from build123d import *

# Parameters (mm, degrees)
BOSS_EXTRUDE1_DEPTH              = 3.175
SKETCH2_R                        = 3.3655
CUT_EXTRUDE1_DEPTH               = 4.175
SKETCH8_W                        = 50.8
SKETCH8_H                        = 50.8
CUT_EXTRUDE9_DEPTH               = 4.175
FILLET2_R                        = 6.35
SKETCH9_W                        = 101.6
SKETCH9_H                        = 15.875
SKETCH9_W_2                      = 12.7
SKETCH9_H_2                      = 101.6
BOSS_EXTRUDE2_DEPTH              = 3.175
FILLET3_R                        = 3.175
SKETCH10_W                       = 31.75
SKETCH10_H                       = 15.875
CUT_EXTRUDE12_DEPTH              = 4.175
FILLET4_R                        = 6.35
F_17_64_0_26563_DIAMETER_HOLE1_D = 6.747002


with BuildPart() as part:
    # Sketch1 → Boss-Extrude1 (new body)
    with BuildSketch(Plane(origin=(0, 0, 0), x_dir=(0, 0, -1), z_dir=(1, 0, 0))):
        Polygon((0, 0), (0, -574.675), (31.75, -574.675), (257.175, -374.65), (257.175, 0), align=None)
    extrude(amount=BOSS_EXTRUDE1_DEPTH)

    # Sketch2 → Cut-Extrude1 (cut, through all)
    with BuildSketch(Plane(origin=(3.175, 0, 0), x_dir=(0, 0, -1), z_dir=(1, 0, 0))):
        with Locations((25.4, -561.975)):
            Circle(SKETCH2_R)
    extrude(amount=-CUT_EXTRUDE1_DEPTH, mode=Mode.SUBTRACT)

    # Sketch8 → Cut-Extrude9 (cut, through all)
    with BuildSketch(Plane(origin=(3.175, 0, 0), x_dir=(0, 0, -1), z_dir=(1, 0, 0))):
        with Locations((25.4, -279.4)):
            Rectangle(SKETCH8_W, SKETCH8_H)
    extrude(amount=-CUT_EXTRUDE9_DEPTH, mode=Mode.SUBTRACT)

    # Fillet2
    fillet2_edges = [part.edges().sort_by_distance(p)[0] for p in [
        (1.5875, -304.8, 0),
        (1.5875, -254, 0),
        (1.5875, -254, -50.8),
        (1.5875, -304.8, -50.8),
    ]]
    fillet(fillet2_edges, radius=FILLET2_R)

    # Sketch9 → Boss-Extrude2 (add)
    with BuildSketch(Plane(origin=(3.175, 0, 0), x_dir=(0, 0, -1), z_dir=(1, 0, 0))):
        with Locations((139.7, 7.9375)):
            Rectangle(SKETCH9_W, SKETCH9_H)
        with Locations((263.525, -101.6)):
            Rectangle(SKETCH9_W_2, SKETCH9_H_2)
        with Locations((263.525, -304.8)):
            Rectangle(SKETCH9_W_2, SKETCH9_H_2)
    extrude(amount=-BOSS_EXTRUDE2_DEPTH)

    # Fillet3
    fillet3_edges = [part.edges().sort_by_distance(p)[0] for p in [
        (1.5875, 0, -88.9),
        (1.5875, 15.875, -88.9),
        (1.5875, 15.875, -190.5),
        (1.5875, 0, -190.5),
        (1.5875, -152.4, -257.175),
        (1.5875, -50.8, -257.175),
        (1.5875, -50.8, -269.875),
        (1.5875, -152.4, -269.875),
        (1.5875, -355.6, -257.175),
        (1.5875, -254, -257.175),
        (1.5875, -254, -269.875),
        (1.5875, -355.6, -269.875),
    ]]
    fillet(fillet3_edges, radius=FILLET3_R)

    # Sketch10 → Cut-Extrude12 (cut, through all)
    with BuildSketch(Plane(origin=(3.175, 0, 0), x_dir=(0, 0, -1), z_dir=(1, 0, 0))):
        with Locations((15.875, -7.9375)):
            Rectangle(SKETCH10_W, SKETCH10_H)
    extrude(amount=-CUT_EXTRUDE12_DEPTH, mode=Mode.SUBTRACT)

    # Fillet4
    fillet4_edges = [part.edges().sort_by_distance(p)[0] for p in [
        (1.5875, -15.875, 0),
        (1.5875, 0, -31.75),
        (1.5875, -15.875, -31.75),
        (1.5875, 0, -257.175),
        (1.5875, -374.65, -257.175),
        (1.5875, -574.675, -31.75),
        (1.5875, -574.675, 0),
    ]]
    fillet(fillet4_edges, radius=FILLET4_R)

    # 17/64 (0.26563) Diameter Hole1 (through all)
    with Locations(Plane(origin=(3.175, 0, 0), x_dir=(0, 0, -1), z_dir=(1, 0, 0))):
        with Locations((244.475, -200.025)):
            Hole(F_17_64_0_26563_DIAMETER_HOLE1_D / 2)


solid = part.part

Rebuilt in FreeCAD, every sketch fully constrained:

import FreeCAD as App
import Part
import Sketcher
Q = App.Units.Quantity


def edges_at(feature, points):
    """Names of the edges that pass closest to the given points."""
    edges = feature.Shape.Edges
    near = lambda p: min(range(len(edges)), key=lambda i: edges[i].distToShape(Part.Vertex(*p))[0])
    return sorted({f"Edge{near(p) + 1}" for p in points})

doc = App.newDocument("Part")
body = doc.addObject("PartDesign::Body", "Body")

sketch1 = body.newObject("Sketcher::SketchObject", "Sketch")
sketch1.AttachmentSupport = (doc.getObject("YZ_Plane"), [""])
sketch1.MapMode = "FlatFace"
sketch1.addGeometry(Part.LineSegment(App.Vector(0, 0, 0), App.Vector(-575, 0, 0)), False)
sketch1.addGeometry(Part.LineSegment(App.Vector(-575, 0, 0), App.Vector(-575, -32, 0)), False)
sketch1.addGeometry(Part.LineSegment(App.Vector(-575, -32, 0), App.Vector(-375, -257, 0)), False)
sketch1.addGeometry(Part.LineSegment(App.Vector(-375, -257, 0), App.Vector(0, -257, 0)), False)
sketch1.addGeometry(Part.LineSegment(App.Vector(0, -257, 0), App.Vector(0, 0, 0)), False)
sketch1.addConstraint(Sketcher.Constraint("Coincident", 0, 2, 1, 1))
sketch1.addConstraint(Sketcher.Constraint("Coincident", 1, 2, 2, 1))
sketch1.addConstraint(Sketcher.Constraint("Coincident", 2, 2, 3, 1))
sketch1.addConstraint(Sketcher.Constraint("Coincident", 3, 2, 4, 1))
sketch1.addConstraint(Sketcher.Constraint("Coincident", 4, 2, 0, 1))
sketch1.addConstraint(Sketcher.Constraint("Horizontal", 0))
sketch1.addConstraint(Sketcher.Constraint("Vertical", 1))
sketch1.addConstraint(Sketcher.Constraint("Horizontal", 3))
sketch1.addConstraint(Sketcher.Constraint("Vertical", 4))
sketch1.addConstraint(Sketcher.Constraint("Coincident", 4, 2, -1, 1))
sketch1.addConstraint(Sketcher.Constraint("DistanceX", 3, 1, 3, 2, Q("14.75 in")))
sketch1.addConstraint(Sketcher.Constraint("DistanceY", 1, 2, 1, 1, Q("1.25 in")))
sketch1.addConstraint(Sketcher.Constraint("DistanceX", 0, 2, 0, 1, Q("22.625 in")))
sketch1.addConstraint(Sketcher.Constraint("DistanceY", 4, 1, 4, 2, Q("10.125 in")))
pad1 = body.newObject("PartDesign::Pad", "Pad")
pad1.Profile = sketch1
pad1.Length = Q("0.125 in")

sketch2 = body.newObject("Sketcher::SketchObject", "Sketch001")
sketch2.AttachmentSupport = (doc.getObject("YZ_Plane"), [""])
sketch2.MapMode = "FlatFace"
sketch2.AttachmentOffset = App.Placement(App.Vector(0, 0, 0.125 * 25.4), App.Rotation())
sketch2.addGeometry(Part.Circle(App.Vector(-562, -25.4, 0), App.Vector(0, 0, 1), 3.4), False)
sketch2.addConstraint(Sketcher.Constraint("Diameter", 0, Q("0.265 in")))
sketch2.addConstraint(Sketcher.Constraint("DistanceY", 0, 3, -1, 1, Q("1 in")))
sketch2.addConstraint(Sketcher.Constraint("DistanceX", 0, 3, -1, 1, Q("22.125 in")))
pocket1 = body.newObject("PartDesign::Pocket", "Pocket")
pocket1.Profile = sketch2
pocket1.Type = "ThroughAll"

sketch3 = body.newObject("Sketcher::SketchObject", "Sketch002")
sketch3.AttachmentSupport = (doc.getObject("YZ_Plane"), [""])
sketch3.MapMode = "FlatFace"
sketch3.AttachmentOffset = App.Placement(App.Vector(0, 0, 0.125 * 25.4), App.Rotation())
sketch3.addGeometry(Part.LineSegment(App.Vector(-254, 0, 0), App.Vector(-305, 0, 0)), False)
sketch3.addGeometry(Part.LineSegment(App.Vector(-305, 0, 0), App.Vector(-305, -51, 0)), False)
sketch3.addGeometry(Part.LineSegment(App.Vector(-305, -51, 0), App.Vector(-254, -51, 0)), False)
sketch3.addGeometry(Part.LineSegment(App.Vector(-254, -51, 0), App.Vector(-254, 0, 0)), False)
sketch3.addConstraint(Sketcher.Constraint("Coincident", 0, 2, 1, 1))
sketch3.addConstraint(Sketcher.Constraint("Coincident", 1, 2, 2, 1))
sketch3.addConstraint(Sketcher.Constraint("Coincident", 2, 2, 3, 1))
sketch3.addConstraint(Sketcher.Constraint("Coincident", 3, 2, 0, 1))
sketch3.addConstraint(Sketcher.Constraint("Horizontal", 0))
sketch3.addConstraint(Sketcher.Constraint("Vertical", 1))
sketch3.addConstraint(Sketcher.Constraint("Horizontal", 2))
sketch3.addConstraint(Sketcher.Constraint("Vertical", 3))
sketch3.addConstraint(Sketcher.Constraint("PointOnObject", 0, 2, -1))
sketch3.addConstraint(Sketcher.Constraint("Equal", 2, 1))
sketch3.addConstraint(Sketcher.Constraint("DistanceX", 0, 2, 0, 1, Q("2 in")))
sketch3.addConstraint(Sketcher.Constraint("DistanceX", 0, 2, -1, 1, Q("12 in")))
pocket2 = body.newObject("PartDesign::Pocket", "Pocket001")
pocket2.Profile = sketch3
pocket2.Type = "ThroughAll"
doc.recompute()

fillet = body.newObject("PartDesign::Fillet", "Fillet")
fillet.Base = (pocket2, edges_at(pocket2, [
    (1.587, -304.8, 0),
    (1.587, -254, 0),
    (1.587, -254, -50.8),
    (1.587, -304.8, -50.8),
]))
fillet.Radius = Q("0.25 in")

sketch4 = body.newObject("Sketcher::SketchObject", "Sketch003")
sketch4.AttachmentSupport = (doc.getObject("YZ_Plane"), [""])
sketch4.MapMode = "FlatFace"
sketch4.AttachmentOffset = App.Placement(App.Vector(0, 0, 0.125 * 25.4), App.Rotation())
sketch4.addGeometry(Part.LineSegment(App.Vector(16, -89, 0), App.Vector(0, -89, 0)), False)
sketch4.addGeometry(Part.LineSegment(App.Vector(0, -89, 0), App.Vector(0, -190, 0)), False)
sketch4.addGeometry(Part.LineSegment(App.Vector(0, -190, 0), App.Vector(16, -190, 0)), False)
sketch4.addGeometry(Part.LineSegment(App.Vector(16, -190, 0), App.Vector(16, -89, 0)), False)
sketch4.addGeometry(Part.LineSegment(App.Vector(-51, -257, 0), App.Vector(-152, -257, 0)), False)
sketch4.addGeometry(Part.LineSegment(App.Vector(-152, -257, 0), App.Vector(-152, -270, 0)), False)
sketch4.addGeometry(Part.LineSegment(App.Vector(-152, -270, 0), App.Vector(-51, -270, 0)), False)
sketch4.addGeometry(Part.LineSegment(App.Vector(-51, -270, 0), App.Vector(-51, -257, 0)), False)
sketch4.addGeometry(Part.LineSegment(App.Vector(-254, -257, 0), App.Vector(-356, -257, 0)), False)
sketch4.addGeometry(Part.LineSegment(App.Vector(-356, -257, 0), App.Vector(-356, -270, 0)), False)
sketch4.addGeometry(Part.LineSegment(App.Vector(-356, -270, 0), App.Vector(-254, -270, 0)), False)
sketch4.addGeometry(Part.LineSegment(App.Vector(-254, -270, 0), App.Vector(-254, -257, 0)), False)
sketch4.addConstraint(Sketcher.Constraint("Coincident", 0, 2, 1, 1))
sketch4.addConstraint(Sketcher.Constraint("Coincident", 1, 2, 2, 1))
sketch4.addConstraint(Sketcher.Constraint("Coincident", 2, 2, 3, 1))
sketch4.addConstraint(Sketcher.Constraint("Coincident", 3, 2, 0, 1))
sketch4.addConstraint(Sketcher.Constraint("Coincident", 4, 2, 5, 1))
sketch4.addConstraint(Sketcher.Constraint("Coincident", 5, 2, 6, 1))
sketch4.addConstraint(Sketcher.Constraint("Coincident", 6, 2, 7, 1))
sketch4.addConstraint(Sketcher.Constraint("Coincident", 7, 2, 4, 1))
sketch4.addConstraint(Sketcher.Constraint("Coincident", 8, 2, 9, 1))
sketch4.addConstraint(Sketcher.Constraint("Coincident", 9, 2, 10, 1))
sketch4.addConstraint(Sketcher.Constraint("Coincident", 10, 2, 11, 1))
sketch4.addConstraint(Sketcher.Constraint("Coincident", 11, 2, 8, 1))
sketch4.addConstraint(Sketcher.Constraint("Horizontal", 0))
sketch4.addConstraint(Sketcher.Constraint("Vertical", 1))
sketch4.addConstraint(Sketcher.Constraint("Horizontal", 2))
sketch4.addConstraint(Sketcher.Constraint("Vertical", 3))
sketch4.addConstraint(Sketcher.Constraint("Horizontal", 4))
sketch4.addConstraint(Sketcher.Constraint("Vertical", 5))
sketch4.addConstraint(Sketcher.Constraint("Horizontal", 6))
sketch4.addConstraint(Sketcher.Constraint("Vertical", 7))
sketch4.addConstraint(Sketcher.Constraint("Horizontal", 8))
sketch4.addConstraint(Sketcher.Constraint("Vertical", 9))
sketch4.addConstraint(Sketcher.Constraint("Horizontal", 10))
sketch4.addConstraint(Sketcher.Constraint("Vertical", 11))
sketch4.addConstraint(Sketcher.Constraint("PointOnObject", 0, 2, -2))
sketch4.addConstraint(Sketcher.Constraint("Horizontal", 7, 2, 8, 2))
sketch4.addConstraint(Sketcher.Constraint("Horizontal", 6, 2, 9, 2))
sketch4.addConstraint(Sketcher.Constraint("Equal", 6, 8))
sketch4.addConstraint(Sketcher.Constraint("Equal", 10, 1))
sketch4.addConstraint(Sketcher.Constraint("DistanceX", 4, 2, 4, 1, Q("4 in")))
sketch4.addConstraint(Sketcher.Constraint("DistanceY", 5, 2, 5, 1, Q("0.5 in")))
sketch4.addConstraint(Sketcher.Constraint("DistanceX", 4, 2, -1, 1, Q("6 in")))
sketch4.addConstraint(Sketcher.Constraint("DistanceX", 8, 2, -1, 1, Q("14 in")))
sketch4.addConstraint(Sketcher.Constraint("DistanceY", 0, 2, -1, 1, Q("3.5 in")))
sketch4.addConstraint(Sketcher.Constraint("DistanceX", 0, 2, 0, 1, Q("0.625 in")))
sketch4.addConstraint(Sketcher.Constraint("DistanceY", 4, 2, -1, 1, Q("10.125 in")))
pad2 = body.newObject("PartDesign::Pad", "Pad001")
pad2.Profile = sketch4
pad2.Length = Q("0.125 in")
pad2.Reversed = True
doc.recompute()

fillet2 = body.newObject("PartDesign::Fillet", "Fillet001")
fillet2.Base = (pad2, edges_at(pad2, [
    (1.587, 0, -88.9),
    (1.587, 15.875, -88.9),
    (1.587, 15.875, -190.5),
    (1.587, 0, -190.5),
    (1.587, -152.4, -257.175),
    (1.587, -50.8, -257.175),
    (1.587, -50.8, -269.875),
    (1.587, -152.4, -269.875),
    (1.587, -355.6, -257.175),
    (1.587, -254, -257.175),
    (1.587, -254, -269.875),
    (1.587, -355.6, -269.875),
]))
fillet2.Radius = Q("0.125 in")

sketch5 = body.newObject("Sketcher::SketchObject", "Sketch004")
sketch5.AttachmentSupport = (doc.getObject("YZ_Plane"), [""])
sketch5.MapMode = "FlatFace"
sketch5.AttachmentOffset = App.Placement(App.Vector(0, 0, 0.125 * 25.4), App.Rotation())
sketch5.addGeometry(Part.LineSegment(App.Vector(0, 0, 0), App.Vector(-16, 0, 0)), False)
sketch5.addGeometry(Part.LineSegment(App.Vector(-16, 0, 0), App.Vector(-16, -32, 0)), False)
sketch5.addGeometry(Part.LineSegment(App.Vector(-16, -32, 0), App.Vector(0, -32, 0)), False)
sketch5.addGeometry(Part.LineSegment(App.Vector(0, -32, 0), App.Vector(0, 0, 0)), False)
sketch5.addConstraint(Sketcher.Constraint("Coincident", 0, 2, 1, 1))
sketch5.addConstraint(Sketcher.Constraint("Coincident", 1, 2, 2, 1))
sketch5.addConstraint(Sketcher.Constraint("Coincident", 2, 2, 3, 1))
sketch5.addConstraint(Sketcher.Constraint("Coincident", 3, 2, 0, 1))
sketch5.addConstraint(Sketcher.Constraint("Horizontal", 0))
sketch5.addConstraint(Sketcher.Constraint("Vertical", 1))
sketch5.addConstraint(Sketcher.Constraint("Horizontal", 2))
sketch5.addConstraint(Sketcher.Constraint("Vertical", 3))
sketch5.addConstraint(Sketcher.Constraint("Coincident", 3, 2, -1, 1))
sketch5.addConstraint(Sketcher.Constraint("DistanceY", 1, 2, 1, 1, Q("1.25 in")))
sketch5.addConstraint(Sketcher.Constraint("DistanceX", 0, 2, 0, 1, Q("0.625 in")))
pocket3 = body.newObject("PartDesign::Pocket", "Pocket002")
pocket3.Profile = sketch5
pocket3.Type = "ThroughAll"
doc.recompute()

fillet3 = body.newObject("PartDesign::Fillet", "Fillet002")
fillet3.Base = (pocket3, edges_at(pocket3, [
    (1.587, -15.875, 0),
    (1.587, 0, -31.75),
    (1.587, -15.875, -31.75),
    (1.587, 0, -257.175),
    (1.587, -374.65, -257.175),
    (1.587, -574.675, -31.75),
    (1.587, -574.675, 0),
]))
fillet3.Radius = Q("0.25 in")

sketch6 = body.newObject("Sketcher::SketchObject", "Sketch005")
sketch6.AttachmentSupport = (doc.getObject("YZ_Plane"), [""])
sketch6.MapMode = "FlatFace"
sketch6.AttachmentOffset = App.Placement(App.Vector(0, 0, 0.125 * 25.4), App.Rotation())
sketch6.addGeometry(Part.Circle(App.Vector(-200, -244.5, 0), App.Vector(0, 0, 1), 3.4), False)
sketch6.addConstraint(Sketcher.Constraint("DistanceX", 0, 3, -1, 1, Q("7.875 in")))
sketch6.addConstraint(Sketcher.Constraint("DistanceY", 0, 3, -1, 1, Q("9.625 in")))
sketch6.addConstraint(Sketcher.Constraint("Diameter", 0, 6.747002))
doc.recompute()
hole = body.newObject("PartDesign::Hole", "Hole")
hole.Profile = sketch6
hole.ThreadType = "None"
hole.Diameter = 6.747002
hole.DepthType = "ThroughAll"

doc.recompute()
